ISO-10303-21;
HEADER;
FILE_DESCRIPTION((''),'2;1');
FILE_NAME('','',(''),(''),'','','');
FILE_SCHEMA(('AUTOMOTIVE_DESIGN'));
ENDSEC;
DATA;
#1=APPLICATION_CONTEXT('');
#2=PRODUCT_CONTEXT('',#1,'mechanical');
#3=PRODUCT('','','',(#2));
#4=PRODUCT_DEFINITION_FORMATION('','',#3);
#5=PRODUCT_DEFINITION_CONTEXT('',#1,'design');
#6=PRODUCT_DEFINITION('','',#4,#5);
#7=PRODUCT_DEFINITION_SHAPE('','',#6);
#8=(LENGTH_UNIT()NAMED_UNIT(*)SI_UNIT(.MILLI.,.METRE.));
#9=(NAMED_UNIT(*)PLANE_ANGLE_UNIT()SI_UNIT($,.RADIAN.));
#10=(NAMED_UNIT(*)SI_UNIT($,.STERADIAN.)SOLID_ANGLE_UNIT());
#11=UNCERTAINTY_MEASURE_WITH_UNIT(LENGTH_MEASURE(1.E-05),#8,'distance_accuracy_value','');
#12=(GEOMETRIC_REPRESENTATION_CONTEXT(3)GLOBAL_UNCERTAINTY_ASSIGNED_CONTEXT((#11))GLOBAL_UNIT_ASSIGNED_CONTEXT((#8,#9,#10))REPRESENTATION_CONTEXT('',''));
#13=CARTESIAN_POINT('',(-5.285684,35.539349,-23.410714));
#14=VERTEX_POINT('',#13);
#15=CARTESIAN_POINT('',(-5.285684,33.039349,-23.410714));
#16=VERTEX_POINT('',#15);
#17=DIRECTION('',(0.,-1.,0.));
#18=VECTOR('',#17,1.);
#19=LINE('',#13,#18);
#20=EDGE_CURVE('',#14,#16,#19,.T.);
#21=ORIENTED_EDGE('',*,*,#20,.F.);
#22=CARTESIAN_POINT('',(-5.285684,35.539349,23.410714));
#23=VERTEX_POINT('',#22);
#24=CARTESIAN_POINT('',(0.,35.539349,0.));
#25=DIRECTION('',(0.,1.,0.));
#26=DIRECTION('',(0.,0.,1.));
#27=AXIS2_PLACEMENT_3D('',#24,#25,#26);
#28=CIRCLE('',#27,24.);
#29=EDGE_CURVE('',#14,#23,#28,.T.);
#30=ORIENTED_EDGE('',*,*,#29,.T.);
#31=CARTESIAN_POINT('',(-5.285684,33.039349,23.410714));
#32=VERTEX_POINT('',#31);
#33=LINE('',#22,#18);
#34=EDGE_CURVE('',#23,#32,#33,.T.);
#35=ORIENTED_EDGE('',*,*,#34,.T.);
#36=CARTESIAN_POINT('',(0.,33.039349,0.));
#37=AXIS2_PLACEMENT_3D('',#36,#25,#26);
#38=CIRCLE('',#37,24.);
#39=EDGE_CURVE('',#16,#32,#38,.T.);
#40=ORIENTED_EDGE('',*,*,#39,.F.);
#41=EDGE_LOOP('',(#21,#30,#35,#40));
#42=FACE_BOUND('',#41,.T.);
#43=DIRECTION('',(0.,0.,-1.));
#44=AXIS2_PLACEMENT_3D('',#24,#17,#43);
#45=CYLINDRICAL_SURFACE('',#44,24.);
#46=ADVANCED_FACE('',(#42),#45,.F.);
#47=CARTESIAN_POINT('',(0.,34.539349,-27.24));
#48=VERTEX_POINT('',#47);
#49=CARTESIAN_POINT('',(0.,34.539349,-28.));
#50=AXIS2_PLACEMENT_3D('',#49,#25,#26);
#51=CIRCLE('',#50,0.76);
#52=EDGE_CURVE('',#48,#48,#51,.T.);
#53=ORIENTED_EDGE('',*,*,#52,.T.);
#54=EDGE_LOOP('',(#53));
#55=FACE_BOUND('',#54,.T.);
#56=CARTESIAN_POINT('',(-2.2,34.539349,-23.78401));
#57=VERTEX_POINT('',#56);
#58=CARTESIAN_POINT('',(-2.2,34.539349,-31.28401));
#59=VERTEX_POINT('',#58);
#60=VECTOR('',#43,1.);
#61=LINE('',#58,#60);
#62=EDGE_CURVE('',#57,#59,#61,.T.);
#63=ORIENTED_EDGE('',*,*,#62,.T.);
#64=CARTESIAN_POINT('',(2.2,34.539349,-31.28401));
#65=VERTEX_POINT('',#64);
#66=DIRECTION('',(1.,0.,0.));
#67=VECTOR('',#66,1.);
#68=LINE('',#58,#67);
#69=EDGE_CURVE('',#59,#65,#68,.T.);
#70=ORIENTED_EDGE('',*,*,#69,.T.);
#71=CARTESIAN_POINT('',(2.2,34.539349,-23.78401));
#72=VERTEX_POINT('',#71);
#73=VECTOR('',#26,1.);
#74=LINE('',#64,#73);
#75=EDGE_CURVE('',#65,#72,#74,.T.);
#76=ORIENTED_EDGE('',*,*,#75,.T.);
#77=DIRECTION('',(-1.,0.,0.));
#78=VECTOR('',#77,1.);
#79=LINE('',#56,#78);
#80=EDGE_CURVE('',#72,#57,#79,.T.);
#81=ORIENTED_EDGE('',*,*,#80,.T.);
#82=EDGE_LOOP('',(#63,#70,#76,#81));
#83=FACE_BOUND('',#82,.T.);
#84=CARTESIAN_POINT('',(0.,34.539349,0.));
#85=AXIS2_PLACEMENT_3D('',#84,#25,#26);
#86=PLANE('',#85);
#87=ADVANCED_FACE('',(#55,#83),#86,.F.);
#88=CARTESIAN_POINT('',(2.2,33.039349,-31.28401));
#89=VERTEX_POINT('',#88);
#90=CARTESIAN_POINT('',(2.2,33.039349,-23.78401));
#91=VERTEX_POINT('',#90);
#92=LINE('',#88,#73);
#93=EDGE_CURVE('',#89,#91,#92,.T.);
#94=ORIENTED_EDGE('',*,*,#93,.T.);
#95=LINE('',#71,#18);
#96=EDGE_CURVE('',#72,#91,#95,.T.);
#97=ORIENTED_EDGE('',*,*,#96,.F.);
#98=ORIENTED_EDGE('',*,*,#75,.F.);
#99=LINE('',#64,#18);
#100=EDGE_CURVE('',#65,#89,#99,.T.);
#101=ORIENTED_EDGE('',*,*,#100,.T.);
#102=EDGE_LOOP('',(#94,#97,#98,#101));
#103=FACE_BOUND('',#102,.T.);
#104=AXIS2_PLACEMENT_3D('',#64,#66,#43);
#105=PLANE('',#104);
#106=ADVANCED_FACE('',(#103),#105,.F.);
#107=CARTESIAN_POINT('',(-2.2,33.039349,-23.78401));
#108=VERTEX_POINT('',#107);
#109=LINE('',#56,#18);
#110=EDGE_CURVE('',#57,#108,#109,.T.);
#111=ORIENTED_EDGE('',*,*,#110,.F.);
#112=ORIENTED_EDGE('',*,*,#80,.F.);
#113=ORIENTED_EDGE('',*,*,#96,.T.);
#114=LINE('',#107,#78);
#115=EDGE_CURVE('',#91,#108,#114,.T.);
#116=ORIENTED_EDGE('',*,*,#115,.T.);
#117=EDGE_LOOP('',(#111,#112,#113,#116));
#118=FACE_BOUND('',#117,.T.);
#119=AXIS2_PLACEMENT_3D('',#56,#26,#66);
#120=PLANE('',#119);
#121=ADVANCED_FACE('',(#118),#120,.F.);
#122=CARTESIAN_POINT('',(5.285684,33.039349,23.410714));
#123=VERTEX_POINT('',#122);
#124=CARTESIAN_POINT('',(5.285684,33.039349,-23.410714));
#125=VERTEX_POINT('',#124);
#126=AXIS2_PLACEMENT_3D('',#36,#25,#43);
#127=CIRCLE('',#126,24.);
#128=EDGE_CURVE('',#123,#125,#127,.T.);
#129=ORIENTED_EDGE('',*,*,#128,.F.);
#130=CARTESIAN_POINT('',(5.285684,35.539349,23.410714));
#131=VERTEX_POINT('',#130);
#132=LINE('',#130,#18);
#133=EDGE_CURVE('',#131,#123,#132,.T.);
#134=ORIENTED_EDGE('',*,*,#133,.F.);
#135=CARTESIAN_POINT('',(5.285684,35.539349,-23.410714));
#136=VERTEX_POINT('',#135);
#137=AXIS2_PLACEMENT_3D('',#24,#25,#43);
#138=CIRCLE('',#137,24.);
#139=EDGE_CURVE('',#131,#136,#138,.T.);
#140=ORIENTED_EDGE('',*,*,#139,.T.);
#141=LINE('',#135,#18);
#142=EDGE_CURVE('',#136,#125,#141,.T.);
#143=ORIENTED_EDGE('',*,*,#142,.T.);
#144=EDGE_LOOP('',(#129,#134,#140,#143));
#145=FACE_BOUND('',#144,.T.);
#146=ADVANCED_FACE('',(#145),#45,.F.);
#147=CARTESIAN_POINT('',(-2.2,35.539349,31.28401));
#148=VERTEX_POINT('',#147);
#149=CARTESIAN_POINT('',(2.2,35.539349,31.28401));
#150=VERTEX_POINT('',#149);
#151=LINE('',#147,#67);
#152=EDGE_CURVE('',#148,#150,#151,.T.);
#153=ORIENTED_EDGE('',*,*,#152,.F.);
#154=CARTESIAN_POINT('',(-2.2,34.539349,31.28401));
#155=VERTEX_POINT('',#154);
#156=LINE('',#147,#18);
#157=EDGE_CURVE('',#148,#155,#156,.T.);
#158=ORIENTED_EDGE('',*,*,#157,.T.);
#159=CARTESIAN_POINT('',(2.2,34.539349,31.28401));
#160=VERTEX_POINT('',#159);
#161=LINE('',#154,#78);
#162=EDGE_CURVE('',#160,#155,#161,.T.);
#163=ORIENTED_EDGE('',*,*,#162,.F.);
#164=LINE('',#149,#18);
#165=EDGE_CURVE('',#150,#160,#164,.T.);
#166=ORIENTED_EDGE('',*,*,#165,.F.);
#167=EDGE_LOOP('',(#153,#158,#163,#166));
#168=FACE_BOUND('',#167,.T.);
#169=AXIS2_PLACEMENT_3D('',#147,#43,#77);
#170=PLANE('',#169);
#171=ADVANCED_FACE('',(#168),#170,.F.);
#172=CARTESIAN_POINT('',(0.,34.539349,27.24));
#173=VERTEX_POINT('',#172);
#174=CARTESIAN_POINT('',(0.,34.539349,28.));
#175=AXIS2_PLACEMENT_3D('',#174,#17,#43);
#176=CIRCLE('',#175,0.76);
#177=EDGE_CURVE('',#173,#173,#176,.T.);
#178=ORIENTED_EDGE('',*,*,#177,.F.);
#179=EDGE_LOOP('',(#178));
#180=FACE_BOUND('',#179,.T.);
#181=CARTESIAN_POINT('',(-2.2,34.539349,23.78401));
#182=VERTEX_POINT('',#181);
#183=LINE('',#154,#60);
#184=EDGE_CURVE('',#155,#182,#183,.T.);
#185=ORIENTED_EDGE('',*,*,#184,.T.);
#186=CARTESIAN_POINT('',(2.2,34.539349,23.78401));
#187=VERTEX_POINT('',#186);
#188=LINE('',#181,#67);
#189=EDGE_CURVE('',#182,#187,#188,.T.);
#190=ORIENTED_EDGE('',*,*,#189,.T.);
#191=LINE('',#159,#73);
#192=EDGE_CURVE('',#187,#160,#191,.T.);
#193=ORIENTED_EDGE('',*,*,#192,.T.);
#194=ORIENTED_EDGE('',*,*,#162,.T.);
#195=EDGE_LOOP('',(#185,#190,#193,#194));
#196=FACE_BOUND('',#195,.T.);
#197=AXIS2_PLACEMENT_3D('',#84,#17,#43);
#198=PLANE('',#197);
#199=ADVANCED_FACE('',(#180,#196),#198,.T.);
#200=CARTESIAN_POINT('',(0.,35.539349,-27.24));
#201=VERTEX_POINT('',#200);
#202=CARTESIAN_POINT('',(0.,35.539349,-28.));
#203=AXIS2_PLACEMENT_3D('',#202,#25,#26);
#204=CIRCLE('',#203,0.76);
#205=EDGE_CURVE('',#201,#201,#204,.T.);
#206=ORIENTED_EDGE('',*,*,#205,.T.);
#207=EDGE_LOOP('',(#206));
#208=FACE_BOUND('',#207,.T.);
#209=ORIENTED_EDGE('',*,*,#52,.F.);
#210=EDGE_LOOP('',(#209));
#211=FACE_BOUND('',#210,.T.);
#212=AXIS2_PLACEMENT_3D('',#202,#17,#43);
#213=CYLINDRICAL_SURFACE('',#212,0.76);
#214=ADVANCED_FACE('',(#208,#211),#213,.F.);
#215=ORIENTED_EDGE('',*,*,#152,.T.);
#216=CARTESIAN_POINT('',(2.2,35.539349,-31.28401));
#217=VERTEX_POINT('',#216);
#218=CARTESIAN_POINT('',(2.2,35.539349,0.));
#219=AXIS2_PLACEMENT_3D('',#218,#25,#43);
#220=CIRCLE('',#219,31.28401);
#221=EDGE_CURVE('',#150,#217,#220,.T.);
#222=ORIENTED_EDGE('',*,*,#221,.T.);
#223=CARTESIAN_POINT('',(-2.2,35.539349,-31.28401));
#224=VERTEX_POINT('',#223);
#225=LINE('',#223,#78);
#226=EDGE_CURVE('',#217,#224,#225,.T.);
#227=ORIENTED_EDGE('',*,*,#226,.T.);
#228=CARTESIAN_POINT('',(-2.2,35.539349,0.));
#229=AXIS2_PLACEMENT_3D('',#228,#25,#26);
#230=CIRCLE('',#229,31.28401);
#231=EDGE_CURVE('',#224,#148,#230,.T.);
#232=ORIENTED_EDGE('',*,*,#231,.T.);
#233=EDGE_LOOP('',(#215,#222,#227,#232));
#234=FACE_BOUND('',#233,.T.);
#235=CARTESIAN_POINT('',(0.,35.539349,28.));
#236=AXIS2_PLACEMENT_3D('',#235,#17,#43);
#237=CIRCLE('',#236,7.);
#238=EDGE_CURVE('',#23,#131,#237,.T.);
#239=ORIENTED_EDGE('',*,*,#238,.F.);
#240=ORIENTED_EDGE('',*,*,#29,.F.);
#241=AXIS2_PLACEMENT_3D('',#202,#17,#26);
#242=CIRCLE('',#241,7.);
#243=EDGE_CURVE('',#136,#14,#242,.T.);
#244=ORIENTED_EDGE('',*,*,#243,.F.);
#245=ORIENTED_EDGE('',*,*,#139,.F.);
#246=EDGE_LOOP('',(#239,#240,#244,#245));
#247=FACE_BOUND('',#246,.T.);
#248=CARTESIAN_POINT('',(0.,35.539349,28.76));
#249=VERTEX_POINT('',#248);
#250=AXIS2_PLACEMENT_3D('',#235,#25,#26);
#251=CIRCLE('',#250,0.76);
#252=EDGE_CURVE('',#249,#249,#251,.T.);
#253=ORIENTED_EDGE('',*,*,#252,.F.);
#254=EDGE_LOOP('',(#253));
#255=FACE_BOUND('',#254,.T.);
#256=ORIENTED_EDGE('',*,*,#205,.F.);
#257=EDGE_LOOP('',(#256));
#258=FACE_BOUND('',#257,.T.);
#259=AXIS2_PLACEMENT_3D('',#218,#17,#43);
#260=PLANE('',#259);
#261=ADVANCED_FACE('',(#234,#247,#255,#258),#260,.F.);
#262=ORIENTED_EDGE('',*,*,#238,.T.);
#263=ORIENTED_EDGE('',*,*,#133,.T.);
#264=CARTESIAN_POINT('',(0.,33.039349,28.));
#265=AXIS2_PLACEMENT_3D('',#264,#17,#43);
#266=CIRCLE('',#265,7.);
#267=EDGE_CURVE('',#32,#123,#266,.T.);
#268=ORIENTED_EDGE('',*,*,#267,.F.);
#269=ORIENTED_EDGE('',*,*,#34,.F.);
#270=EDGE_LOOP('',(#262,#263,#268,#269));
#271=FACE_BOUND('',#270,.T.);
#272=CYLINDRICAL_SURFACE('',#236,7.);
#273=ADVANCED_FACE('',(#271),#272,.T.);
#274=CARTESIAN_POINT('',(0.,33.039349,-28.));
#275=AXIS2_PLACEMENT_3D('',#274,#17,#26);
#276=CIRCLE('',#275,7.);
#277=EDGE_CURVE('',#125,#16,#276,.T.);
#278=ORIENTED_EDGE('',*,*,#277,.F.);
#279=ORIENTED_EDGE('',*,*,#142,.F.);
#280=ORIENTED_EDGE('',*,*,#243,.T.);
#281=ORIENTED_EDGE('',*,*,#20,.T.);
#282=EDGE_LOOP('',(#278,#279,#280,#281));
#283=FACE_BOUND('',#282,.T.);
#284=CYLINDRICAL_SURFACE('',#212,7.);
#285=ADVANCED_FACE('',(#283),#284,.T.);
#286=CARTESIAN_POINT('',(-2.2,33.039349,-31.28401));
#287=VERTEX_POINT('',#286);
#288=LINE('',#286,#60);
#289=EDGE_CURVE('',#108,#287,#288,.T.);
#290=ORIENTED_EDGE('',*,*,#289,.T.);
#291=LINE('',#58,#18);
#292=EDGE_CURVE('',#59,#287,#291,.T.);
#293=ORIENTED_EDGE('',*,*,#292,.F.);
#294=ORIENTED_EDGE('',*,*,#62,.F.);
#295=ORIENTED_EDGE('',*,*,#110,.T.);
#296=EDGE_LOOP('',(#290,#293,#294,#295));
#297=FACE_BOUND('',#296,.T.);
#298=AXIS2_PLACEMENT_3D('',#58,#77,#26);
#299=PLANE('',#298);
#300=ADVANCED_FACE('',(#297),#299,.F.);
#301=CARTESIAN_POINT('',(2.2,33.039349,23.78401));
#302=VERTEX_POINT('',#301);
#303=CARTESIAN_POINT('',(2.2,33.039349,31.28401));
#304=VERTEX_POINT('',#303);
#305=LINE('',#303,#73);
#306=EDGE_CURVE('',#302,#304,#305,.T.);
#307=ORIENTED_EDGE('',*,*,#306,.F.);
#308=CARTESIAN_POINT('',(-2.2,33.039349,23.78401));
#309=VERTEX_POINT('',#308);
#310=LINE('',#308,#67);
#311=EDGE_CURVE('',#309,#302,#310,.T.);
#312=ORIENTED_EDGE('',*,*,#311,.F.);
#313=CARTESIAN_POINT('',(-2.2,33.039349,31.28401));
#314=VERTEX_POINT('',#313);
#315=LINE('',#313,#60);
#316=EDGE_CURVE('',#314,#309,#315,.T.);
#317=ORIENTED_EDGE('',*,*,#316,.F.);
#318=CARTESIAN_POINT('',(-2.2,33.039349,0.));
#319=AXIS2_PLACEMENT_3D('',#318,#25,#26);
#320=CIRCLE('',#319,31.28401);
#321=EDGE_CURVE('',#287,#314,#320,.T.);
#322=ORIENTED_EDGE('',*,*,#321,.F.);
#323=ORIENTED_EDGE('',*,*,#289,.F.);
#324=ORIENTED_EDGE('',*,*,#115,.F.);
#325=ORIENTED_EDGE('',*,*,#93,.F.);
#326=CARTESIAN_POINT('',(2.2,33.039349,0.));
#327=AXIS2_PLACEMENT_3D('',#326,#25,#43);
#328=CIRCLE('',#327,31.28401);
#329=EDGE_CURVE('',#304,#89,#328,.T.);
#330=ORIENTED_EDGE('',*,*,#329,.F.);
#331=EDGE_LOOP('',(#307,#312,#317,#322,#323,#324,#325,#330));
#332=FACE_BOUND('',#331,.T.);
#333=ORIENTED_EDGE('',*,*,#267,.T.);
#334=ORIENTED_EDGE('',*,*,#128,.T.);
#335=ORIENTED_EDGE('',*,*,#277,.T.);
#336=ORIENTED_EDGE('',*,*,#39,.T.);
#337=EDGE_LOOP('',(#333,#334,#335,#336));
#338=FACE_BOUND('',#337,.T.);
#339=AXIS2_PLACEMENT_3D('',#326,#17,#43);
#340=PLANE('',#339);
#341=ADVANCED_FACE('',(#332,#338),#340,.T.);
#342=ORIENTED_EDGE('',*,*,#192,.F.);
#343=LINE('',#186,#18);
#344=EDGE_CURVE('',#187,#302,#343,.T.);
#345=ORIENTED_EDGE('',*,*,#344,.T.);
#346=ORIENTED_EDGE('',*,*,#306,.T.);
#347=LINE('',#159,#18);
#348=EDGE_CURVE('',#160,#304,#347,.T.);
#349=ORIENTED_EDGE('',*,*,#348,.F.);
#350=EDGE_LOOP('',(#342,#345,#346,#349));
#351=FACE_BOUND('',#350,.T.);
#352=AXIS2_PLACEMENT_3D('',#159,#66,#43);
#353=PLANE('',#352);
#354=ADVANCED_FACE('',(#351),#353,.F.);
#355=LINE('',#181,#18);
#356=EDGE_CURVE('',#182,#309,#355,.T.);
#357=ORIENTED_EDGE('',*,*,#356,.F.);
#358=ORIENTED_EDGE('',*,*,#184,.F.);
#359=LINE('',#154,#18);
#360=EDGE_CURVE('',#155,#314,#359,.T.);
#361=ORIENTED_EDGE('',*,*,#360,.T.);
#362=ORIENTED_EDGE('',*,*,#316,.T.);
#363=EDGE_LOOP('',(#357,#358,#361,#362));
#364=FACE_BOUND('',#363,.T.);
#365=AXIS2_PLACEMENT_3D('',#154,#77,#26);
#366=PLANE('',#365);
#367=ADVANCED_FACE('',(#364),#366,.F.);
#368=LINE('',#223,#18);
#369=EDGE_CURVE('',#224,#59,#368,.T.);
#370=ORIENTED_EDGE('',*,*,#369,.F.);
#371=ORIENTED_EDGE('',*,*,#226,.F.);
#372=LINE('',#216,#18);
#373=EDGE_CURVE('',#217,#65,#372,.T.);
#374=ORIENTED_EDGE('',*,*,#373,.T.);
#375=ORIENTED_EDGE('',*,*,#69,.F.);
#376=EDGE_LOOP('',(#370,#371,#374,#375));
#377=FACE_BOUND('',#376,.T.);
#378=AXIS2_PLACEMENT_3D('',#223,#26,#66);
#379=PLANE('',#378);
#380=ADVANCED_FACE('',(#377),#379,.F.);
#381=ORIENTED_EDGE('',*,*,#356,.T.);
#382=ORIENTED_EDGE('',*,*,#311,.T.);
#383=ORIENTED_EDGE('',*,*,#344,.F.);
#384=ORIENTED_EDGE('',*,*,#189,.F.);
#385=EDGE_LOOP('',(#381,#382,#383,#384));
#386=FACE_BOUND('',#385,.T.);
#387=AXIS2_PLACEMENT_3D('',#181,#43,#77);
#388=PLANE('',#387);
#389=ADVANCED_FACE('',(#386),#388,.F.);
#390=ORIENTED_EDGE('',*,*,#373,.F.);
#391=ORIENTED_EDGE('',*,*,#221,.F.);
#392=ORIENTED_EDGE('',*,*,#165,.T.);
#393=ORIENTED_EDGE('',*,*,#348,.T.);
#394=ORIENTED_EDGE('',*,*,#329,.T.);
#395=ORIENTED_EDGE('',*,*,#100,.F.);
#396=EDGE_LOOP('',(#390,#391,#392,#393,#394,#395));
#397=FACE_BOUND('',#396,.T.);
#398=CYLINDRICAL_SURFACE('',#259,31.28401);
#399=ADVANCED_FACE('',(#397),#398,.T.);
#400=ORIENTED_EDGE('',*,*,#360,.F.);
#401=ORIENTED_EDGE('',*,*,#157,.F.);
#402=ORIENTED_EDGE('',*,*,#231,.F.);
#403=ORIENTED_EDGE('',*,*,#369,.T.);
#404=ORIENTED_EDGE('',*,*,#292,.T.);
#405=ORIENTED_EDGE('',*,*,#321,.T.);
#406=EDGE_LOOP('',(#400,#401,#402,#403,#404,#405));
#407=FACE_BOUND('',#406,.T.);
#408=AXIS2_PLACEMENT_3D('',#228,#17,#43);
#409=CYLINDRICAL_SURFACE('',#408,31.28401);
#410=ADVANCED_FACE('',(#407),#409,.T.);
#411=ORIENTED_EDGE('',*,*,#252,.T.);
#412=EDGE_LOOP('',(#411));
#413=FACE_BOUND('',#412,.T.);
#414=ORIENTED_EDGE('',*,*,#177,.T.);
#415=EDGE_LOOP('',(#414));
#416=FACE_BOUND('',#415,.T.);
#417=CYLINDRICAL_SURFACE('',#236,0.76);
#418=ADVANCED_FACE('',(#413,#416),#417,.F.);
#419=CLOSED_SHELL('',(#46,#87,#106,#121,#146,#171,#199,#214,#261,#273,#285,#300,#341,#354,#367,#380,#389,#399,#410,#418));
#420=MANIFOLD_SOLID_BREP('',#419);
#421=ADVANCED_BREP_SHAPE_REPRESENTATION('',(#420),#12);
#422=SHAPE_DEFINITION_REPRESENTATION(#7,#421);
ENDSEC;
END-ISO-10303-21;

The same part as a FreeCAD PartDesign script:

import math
import FreeCAD as App
import Part
import Sketcher

V = App.Vector
Q = App.Units.Quantity

doc = App.newDocument("Part")
body = doc.addObject("PartDesign::Body", "Body")

# Sketch on XZ plane
sketch1 = doc.addObject("Sketcher::SketchObject", "Sketch")
body.addObject(sketch1)
sketch1.AttachmentSupport = (doc.XZ_Plane, [""])
sketch1.MapMode = "FlatFace"
sketch1.AttachmentOffset = App.Placement(V(0, 0, -33.039349), App.Rotation())
sketch1.addGeometry([
    Part.LineSegment(V(2.2, -31.28401, 0), V(-2.2, -31.28401, 0)),  # 0
    Part.ArcOfCircle(Part.Circle(V(-2.2, 0, 0), V(0, 0, 1), 31.28401), math.radians(90), math.radians(270)),  # 1
    Part.LineSegment(V(-2.2, 31.28401, 0), V(2.2, 31.28401, 0)),  # 2
    Part.ArcOfCircle(Part.Circle(V(2.2, 0, 0), V(0, 0, 1), 31.28401), math.radians(-90), math.radians(90)),  # 3
    Part.Circle(V(0, 28, 0), V(0, 0, 1), 0.76),  # 4
    Part.ArcOfCircle(Part.Circle(V(0, -28, 0), V(0, 0, 1), 7), math.radians(40.96609), math.radians(139.03391)),  # 5
    Part.ArcOfCircle(Part.Circle(V(0, 0, 0), V(0, 0, 1), 24), math.radians(-77.277056), math.radians(77.277056)),  # 6
    Part.ArcOfCircle(Part.Circle(V(0, 28, 0), V(0, 0, 1), 7), math.radians(-139.03391), math.radians(-40.96609)),  # 7
    Part.ArcOfCircle(Part.Circle(V(0, 0, 0), V(0, 0, 1), 24), math.radians(102.722944), math.radians(257.277056)),  # 8
    Part.Circle(V(0, -28, 0), V(0, 0, 1), 0.76),  # 9
], False)
sketch1.addConstraint([
    Sketcher.Constraint("Tangent", 0, 2, 1, 2),
    Sketcher.Constraint("Tangent", 1, 1, 2, 1),
    Sketcher.Constraint("Tangent", 2, 2, 3, 2),
    Sketcher.Constraint("Tangent", 3, 1, 0, 1),
    Sketcher.Constraint("Coincident", 5, 1, 6, 1),
    Sketcher.Constraint("Coincident", 6, 2, 7, 2),
    Sketcher.Constraint("Coincident", 7, 1, 8, 1),
    Sketcher.Constraint("Coincident", 8, 2, 5, 2),
    Sketcher.Constraint("Horizontal", 0),
    Sketcher.Constraint("Horizontal", 2),
    Sketcher.Constraint("Coincident", 6, 3, -1, 1),
    Sketcher.Constraint("Coincident", 8, 3, -1, 1),
    Sketcher.Constraint("Coincident", 7, 3, 4, 3),
    Sketcher.Constraint("Coincident", 9, 3, 5, 3),
    Sketcher.Constraint("Equal", 5, 7),
    Sketcher.Constraint("Equal", 6, 8),
    Sketcher.Constraint("Equal", 4, 9),
    Sketcher.Constraint("Symmetric", 1, 3, 3, 3, -1, 1),
    Sketcher.Constraint("Symmetric", 4, 3, 5, 3, -1, 1),
    Sketcher.Constraint("PointOnObject", 4, 3, -2),
    Sketcher.Constraint("Radius", 5, Q("7 mm")),
    Sketcher.Constraint("Radius", 6, Q("24 mm")),
    Sketcher.Constraint("Diameter", 4, Q("1.52 mm")),
    Sketcher.Constraint("DistanceX", 0, 2, 0, 1, Q("4.4 mm")),
    Sketcher.Constraint("DistanceY", -1, 1, 4, 3, Q("28 mm")),
    Sketcher.Constraint("Radius", 1, Q("31.28401 mm")),
])
pad1 = doc.addObject("PartDesign::Pad", "Pad")
body.addObject(pad1)
pad1.Profile = sketch1
pad1.Length = 2.5
pad1.Reversed = True

# Sketch on XZ plane
sketch2 = doc.addObject("Sketcher::SketchObject", "Sketch001")
body.addObject(sketch2)
sketch2.AttachmentSupport = (doc.XZ_Plane, [""])
sketch2.MapMode = "FlatFace"
sketch2.AttachmentOffset = App.Placement(V(0, 0, -33.039349), App.Rotation())
sketch2.addGeometry([
    Part.LineSegment(V(-2.2, 31.28401, 0), V(-2.2, 23.78401, 0)),  # 0
    Part.LineSegment(V(-2.2, 23.78401, 0), V(2.2, 23.78401, 0)),  # 1
    Part.LineSegment(V(2.2, 23.78401, 0), V(2.2, 31.28401, 0)),  # 2
    Part.LineSegment(V(2.2, 31.28401, 0), V(-2.2, 31.28401, 0)),  # 3
    Part.LineSegment(V(-2.2, -23.78401, 0), V(-2.2, -31.28401, 0)),  # 4
    Part.LineSegment(V(-2.2, -31.28401, 0), V(2.2, -31.28401, 0)),  # 5
    Part.LineSegment(V(2.2, -31.28401, 0), V(2.2, -23.78401, 0)),  # 6
    Part.LineSegment(V(2.2, -23.78401, 0), V(-2.2, -23.78401, 0)),  # 7
], False)
sketch2.addConstraint([
    Sketcher.Constraint("Coincident", 0, 2, 1, 1),
    Sketcher.Constraint("Coincident", 1, 2, 2, 1),
    Sketcher.Constraint("Coincident", 2, 2, 3, 1),
    Sketcher.Constraint("Coincident", 3, 2, 0, 1),
    Sketcher.Constraint("Coincident", 4, 2, 5, 1),
    Sketcher.Constraint("Coincident", 5, 2, 6, 1),
    Sketcher.Constraint("Coincident", 6, 2, 7, 1),
    Sketcher.Constraint("Coincident", 7, 2, 4, 1),
    Sketcher.Constraint("Vertical", 0),
    Sketcher.Constraint("Horizontal", 1),
    Sketcher.Constraint("Vertical", 2),
    Sketcher.Constraint("Horizontal", 3),
    Sketcher.Constraint("Vertical", 4),
    Sketcher.Constraint("Horizontal", 5),
    Sketcher.Constraint("Vertical", 6),
    Sketcher.Constraint("Horizontal", 7),
    Sketcher.Constraint("Symmetric", 2, 2, 4, 2, -1, 1),
    Sketcher.Constraint("Symmetric", 0, 2, 6, 2, -1, 1),
    Sketcher.Constraint("Vertical", 3, 2, 4, 2),
    Sketcher.Constraint("DistanceX", 1, 1, 1, 2, Q("4.4 mm")),
    Sketcher.Constraint("DistanceY", 0, 2, 0, 1, Q("7.5 mm")),
    Sketcher.Constraint("DistanceY", -1, 1, 0, 2, Q("23.78401 mm")),
])
pocket1 = doc.addObject("PartDesign::Pocket", "Pocket")
body.addObject(pocket1)
pocket1.Profile = sketch2
pocket1.Length = 1.5

doc.recompute()
